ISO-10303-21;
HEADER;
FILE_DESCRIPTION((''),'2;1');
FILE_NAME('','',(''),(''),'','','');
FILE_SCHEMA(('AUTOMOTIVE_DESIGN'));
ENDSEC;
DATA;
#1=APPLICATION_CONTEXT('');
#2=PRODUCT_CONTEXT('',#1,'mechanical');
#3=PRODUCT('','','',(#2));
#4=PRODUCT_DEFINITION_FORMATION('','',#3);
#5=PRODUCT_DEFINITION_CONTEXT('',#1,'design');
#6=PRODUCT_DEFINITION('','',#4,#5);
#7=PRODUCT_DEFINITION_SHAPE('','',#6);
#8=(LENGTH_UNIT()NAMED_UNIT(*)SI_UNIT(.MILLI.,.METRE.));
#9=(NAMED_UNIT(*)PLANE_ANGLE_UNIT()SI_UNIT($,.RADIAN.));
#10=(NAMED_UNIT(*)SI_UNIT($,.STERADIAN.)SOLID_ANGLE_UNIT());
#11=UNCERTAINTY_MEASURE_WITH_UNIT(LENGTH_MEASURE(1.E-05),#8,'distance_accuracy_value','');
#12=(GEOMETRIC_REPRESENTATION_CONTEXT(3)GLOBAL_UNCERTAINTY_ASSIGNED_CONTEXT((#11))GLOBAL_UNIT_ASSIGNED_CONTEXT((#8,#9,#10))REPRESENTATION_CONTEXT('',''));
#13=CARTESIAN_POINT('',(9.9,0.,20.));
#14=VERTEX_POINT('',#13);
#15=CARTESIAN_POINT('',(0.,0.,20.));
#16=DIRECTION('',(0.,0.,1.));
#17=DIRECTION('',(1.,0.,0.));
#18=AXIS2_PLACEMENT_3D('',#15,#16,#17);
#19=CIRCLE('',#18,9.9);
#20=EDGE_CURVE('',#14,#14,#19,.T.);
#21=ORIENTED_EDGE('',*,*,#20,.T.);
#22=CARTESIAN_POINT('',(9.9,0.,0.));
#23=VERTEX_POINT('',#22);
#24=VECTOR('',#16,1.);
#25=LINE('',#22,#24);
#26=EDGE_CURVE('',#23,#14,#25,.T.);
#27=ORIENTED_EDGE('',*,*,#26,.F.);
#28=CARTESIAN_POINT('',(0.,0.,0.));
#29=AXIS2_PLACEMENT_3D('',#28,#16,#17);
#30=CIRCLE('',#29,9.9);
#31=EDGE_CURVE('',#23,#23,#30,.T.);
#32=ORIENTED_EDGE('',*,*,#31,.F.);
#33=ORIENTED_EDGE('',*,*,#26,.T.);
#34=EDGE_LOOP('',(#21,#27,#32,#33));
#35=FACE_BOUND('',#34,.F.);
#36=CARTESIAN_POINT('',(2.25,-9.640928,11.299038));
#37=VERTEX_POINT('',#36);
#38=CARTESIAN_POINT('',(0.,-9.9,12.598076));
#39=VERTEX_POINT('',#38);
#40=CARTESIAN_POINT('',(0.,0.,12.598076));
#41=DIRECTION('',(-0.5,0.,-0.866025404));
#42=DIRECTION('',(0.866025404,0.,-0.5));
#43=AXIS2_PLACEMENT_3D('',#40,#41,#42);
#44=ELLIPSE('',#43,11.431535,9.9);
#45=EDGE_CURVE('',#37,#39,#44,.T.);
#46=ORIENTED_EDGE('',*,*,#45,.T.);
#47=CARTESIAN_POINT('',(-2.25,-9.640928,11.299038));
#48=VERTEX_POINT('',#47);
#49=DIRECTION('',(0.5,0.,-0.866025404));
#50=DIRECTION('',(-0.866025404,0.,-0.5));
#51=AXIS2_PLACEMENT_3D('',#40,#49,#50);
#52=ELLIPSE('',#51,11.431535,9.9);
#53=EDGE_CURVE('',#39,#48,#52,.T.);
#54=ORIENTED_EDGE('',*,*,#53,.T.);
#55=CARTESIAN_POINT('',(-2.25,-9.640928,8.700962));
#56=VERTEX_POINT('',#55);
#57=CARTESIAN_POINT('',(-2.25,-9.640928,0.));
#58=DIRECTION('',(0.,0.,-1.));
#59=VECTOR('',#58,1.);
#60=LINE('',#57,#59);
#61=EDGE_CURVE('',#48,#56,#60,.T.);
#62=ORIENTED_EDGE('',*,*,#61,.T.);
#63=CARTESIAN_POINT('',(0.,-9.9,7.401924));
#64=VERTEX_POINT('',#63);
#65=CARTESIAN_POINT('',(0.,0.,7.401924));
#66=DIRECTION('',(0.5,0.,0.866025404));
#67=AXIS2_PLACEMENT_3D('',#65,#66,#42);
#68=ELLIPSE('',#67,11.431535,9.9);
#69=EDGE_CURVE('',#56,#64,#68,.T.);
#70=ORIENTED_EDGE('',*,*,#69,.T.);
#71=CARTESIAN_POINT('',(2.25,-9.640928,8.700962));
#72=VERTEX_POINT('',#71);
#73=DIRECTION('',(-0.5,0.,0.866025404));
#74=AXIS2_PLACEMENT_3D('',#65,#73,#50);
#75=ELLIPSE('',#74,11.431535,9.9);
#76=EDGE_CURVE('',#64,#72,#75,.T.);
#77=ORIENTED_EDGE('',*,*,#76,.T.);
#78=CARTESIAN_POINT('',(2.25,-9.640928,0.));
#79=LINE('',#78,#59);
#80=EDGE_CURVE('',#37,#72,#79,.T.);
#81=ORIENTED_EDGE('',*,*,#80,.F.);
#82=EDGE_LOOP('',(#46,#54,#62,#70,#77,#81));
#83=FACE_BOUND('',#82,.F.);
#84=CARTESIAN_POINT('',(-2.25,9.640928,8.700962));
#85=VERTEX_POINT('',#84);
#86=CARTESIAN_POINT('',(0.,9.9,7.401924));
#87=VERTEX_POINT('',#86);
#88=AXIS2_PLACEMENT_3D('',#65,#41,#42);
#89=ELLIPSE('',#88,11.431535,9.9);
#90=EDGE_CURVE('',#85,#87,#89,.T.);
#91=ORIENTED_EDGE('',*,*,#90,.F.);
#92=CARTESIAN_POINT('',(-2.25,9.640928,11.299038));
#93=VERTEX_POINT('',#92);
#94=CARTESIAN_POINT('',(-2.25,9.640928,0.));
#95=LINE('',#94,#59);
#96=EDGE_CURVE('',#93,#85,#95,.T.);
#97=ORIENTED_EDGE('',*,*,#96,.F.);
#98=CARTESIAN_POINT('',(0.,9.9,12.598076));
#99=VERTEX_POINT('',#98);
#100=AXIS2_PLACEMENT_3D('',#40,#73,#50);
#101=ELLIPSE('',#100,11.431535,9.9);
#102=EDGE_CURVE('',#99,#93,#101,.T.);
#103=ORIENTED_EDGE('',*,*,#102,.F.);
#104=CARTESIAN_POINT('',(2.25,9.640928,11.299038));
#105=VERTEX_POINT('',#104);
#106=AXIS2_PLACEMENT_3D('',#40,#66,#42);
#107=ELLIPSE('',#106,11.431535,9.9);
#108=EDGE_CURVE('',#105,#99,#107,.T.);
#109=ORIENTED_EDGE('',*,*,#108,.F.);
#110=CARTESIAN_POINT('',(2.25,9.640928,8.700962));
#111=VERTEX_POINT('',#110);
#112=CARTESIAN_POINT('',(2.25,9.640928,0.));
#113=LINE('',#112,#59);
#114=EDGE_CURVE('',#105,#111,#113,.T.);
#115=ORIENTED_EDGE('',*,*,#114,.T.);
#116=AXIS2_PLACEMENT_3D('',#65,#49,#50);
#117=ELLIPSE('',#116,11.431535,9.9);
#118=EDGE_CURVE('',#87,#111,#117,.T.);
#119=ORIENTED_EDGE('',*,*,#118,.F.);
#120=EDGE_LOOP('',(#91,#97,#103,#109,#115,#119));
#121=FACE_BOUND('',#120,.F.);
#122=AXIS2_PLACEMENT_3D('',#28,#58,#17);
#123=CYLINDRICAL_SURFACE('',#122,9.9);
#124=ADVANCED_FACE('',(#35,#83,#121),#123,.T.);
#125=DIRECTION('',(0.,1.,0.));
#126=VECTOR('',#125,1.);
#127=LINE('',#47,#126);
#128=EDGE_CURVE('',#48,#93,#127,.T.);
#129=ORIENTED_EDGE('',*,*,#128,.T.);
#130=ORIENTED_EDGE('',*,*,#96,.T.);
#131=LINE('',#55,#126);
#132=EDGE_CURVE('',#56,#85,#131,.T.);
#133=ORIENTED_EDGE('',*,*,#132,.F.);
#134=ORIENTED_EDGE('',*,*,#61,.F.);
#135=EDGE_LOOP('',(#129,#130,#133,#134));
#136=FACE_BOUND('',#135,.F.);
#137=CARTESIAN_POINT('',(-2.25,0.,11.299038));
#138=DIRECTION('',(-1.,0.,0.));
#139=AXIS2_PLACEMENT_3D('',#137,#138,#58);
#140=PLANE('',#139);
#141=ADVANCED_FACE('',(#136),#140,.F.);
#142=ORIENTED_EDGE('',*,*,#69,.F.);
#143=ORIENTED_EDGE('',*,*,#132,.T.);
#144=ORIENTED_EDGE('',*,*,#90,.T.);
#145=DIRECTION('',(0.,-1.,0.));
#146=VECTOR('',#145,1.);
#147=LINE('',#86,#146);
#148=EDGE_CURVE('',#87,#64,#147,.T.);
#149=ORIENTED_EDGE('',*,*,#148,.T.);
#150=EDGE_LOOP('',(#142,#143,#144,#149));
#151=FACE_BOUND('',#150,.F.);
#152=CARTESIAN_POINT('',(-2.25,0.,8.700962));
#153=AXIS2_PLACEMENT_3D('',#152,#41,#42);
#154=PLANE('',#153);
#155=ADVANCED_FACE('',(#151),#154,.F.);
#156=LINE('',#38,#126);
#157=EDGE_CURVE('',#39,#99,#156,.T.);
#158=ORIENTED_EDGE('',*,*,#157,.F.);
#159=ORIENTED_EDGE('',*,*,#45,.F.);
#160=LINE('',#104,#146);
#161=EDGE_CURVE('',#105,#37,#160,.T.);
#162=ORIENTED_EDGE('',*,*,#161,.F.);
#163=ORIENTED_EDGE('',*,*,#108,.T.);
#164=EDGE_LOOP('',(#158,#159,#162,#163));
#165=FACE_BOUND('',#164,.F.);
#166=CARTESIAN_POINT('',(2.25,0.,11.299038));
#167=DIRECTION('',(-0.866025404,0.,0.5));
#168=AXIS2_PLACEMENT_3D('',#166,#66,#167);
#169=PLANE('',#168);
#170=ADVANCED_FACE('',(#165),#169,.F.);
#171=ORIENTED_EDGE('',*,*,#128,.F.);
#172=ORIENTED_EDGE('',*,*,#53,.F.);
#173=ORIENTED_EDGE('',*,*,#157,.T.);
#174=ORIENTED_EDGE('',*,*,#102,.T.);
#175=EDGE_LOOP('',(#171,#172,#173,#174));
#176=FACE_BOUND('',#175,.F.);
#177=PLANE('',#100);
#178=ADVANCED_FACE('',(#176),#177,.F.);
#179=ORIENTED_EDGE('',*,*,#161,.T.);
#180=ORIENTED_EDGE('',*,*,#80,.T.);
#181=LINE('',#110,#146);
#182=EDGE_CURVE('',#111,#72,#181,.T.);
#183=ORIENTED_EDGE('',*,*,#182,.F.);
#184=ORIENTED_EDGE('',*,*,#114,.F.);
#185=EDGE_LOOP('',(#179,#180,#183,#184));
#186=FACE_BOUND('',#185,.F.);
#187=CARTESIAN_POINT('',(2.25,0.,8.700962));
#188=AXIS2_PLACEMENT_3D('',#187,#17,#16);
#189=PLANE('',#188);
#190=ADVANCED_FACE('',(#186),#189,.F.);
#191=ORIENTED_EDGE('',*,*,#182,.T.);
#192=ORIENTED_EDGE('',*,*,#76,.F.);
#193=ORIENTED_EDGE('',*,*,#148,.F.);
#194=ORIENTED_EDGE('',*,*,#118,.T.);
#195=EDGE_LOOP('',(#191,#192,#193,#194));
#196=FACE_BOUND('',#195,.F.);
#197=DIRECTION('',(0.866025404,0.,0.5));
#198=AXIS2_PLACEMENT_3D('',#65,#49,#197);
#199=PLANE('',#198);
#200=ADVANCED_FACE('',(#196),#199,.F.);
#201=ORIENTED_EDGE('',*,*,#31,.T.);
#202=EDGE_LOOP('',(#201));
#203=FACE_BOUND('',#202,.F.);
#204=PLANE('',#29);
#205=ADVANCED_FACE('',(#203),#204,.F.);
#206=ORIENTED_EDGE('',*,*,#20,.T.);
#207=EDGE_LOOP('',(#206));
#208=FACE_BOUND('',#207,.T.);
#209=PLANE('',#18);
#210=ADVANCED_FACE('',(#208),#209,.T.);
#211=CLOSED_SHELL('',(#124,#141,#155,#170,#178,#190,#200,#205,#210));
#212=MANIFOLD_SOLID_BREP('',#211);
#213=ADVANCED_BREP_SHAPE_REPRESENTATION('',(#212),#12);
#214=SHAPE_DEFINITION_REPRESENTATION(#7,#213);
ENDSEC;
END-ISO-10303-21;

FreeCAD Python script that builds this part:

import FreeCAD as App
import Part
import Sketcher

V = App.Vector
Q = App.Units.Quantity

doc = App.newDocument("Part")
body = doc.addObject("PartDesign::Body", "Body")

# Sketch on XY plane
sketch1 = body.newObject("Sketcher::SketchObject", "Sketch")
sketch1.AttachmentSupport = (doc.getObject("XY_Plane"), [""])
sketch1.MapMode = "FlatFace"
sketch1.addGeometry(Part.Circle(V(0, 0, 0), V(0, 0, 1), 10), False)
sketch1.addConstraint([
    Sketcher.Constraint("Coincident", 0, 3, -1, 1),
    Sketcher.Constraint("Diameter", 0, 19.8),
])
pad1 = body.newObject("PartDesign::Pad", "Pad")
pad1.Profile = sketch1
pad1.Length = 20

# Sketch on XZ plane
sketch2 = body.newObject("Sketcher::SketchObject", "Sketch001")
sketch2.AttachmentSupport = (doc.getObject("XZ_Plane"), [""])
sketch2.MapMode = "FlatFace"
sketch2.addGeometry([
    Part.LineSegment(V(2.2, 8.7, 0), V(2.2, 11.3, 0)),  # 0
    Part.LineSegment(V(2.2, 11.3, 0), V(0, 12.6, 0)),  # 1
    Part.LineSegment(V(0, 12.6, 0), V(-2.2, 11.3, 0)),  # 2
    Part.LineSegment(V(-2.2, 11.3, 0), V(-2.2, 8.7, 0)),  # 3
    Part.LineSegment(V(-2.2, 8.7, 0), V(0, 7.4, 0)),  # 4
    Part.LineSegment(V(0, 7.4, 0), V(2.2, 8.7, 0)),  # 5
], False)
sketch2.addConstraint([
    Sketcher.Constraint("Coincident", 0, 2, 1, 1),
    Sketcher.Constraint("Coincident", 1, 2, 2, 1),
    Sketcher.Constraint("Coincident", 2, 2, 3, 1),
    Sketcher.Constraint("Coincident", 3, 2, 4, 1),
    Sketcher.Constraint("Coincident", 4, 2, 5, 1),
    Sketcher.Constraint("Coincident", 5, 2, 0, 1),
    Sketcher.Constraint("Vertical", 0),
    Sketcher.Constraint("Vertical", 3),
    Sketcher.Constraint("Symmetric", 0, 2, 2, 2, -2),
    Sketcher.Constraint("PointOnObject", 1, 2, -2),
    Sketcher.Constraint("PointOnObject", 4, 2, -2),
    Sketcher.Constraint("Parallel", 1, 4),
    Sketcher.Constraint("Parallel", 2, 5),
    Sketcher.Constraint("Angle", 1, Q("150 deg")),
    Sketcher.Constraint("DistanceX", 2, 2, 0, 2, 4.5),
    Sketcher.Constraint("DistanceY", 0, 1, 0, 2, 2.598076),
    Sketcher.Constraint("DistanceY", -1, 1, 0, 2, 11.299038),
])
pocket1 = body.newObject("PartDesign::Pocket", "Pocket")
pocket1.Profile = sketch2
pocket1.Type = "ThroughAll"
pocket1.Midplane = True

doc.recompute()
